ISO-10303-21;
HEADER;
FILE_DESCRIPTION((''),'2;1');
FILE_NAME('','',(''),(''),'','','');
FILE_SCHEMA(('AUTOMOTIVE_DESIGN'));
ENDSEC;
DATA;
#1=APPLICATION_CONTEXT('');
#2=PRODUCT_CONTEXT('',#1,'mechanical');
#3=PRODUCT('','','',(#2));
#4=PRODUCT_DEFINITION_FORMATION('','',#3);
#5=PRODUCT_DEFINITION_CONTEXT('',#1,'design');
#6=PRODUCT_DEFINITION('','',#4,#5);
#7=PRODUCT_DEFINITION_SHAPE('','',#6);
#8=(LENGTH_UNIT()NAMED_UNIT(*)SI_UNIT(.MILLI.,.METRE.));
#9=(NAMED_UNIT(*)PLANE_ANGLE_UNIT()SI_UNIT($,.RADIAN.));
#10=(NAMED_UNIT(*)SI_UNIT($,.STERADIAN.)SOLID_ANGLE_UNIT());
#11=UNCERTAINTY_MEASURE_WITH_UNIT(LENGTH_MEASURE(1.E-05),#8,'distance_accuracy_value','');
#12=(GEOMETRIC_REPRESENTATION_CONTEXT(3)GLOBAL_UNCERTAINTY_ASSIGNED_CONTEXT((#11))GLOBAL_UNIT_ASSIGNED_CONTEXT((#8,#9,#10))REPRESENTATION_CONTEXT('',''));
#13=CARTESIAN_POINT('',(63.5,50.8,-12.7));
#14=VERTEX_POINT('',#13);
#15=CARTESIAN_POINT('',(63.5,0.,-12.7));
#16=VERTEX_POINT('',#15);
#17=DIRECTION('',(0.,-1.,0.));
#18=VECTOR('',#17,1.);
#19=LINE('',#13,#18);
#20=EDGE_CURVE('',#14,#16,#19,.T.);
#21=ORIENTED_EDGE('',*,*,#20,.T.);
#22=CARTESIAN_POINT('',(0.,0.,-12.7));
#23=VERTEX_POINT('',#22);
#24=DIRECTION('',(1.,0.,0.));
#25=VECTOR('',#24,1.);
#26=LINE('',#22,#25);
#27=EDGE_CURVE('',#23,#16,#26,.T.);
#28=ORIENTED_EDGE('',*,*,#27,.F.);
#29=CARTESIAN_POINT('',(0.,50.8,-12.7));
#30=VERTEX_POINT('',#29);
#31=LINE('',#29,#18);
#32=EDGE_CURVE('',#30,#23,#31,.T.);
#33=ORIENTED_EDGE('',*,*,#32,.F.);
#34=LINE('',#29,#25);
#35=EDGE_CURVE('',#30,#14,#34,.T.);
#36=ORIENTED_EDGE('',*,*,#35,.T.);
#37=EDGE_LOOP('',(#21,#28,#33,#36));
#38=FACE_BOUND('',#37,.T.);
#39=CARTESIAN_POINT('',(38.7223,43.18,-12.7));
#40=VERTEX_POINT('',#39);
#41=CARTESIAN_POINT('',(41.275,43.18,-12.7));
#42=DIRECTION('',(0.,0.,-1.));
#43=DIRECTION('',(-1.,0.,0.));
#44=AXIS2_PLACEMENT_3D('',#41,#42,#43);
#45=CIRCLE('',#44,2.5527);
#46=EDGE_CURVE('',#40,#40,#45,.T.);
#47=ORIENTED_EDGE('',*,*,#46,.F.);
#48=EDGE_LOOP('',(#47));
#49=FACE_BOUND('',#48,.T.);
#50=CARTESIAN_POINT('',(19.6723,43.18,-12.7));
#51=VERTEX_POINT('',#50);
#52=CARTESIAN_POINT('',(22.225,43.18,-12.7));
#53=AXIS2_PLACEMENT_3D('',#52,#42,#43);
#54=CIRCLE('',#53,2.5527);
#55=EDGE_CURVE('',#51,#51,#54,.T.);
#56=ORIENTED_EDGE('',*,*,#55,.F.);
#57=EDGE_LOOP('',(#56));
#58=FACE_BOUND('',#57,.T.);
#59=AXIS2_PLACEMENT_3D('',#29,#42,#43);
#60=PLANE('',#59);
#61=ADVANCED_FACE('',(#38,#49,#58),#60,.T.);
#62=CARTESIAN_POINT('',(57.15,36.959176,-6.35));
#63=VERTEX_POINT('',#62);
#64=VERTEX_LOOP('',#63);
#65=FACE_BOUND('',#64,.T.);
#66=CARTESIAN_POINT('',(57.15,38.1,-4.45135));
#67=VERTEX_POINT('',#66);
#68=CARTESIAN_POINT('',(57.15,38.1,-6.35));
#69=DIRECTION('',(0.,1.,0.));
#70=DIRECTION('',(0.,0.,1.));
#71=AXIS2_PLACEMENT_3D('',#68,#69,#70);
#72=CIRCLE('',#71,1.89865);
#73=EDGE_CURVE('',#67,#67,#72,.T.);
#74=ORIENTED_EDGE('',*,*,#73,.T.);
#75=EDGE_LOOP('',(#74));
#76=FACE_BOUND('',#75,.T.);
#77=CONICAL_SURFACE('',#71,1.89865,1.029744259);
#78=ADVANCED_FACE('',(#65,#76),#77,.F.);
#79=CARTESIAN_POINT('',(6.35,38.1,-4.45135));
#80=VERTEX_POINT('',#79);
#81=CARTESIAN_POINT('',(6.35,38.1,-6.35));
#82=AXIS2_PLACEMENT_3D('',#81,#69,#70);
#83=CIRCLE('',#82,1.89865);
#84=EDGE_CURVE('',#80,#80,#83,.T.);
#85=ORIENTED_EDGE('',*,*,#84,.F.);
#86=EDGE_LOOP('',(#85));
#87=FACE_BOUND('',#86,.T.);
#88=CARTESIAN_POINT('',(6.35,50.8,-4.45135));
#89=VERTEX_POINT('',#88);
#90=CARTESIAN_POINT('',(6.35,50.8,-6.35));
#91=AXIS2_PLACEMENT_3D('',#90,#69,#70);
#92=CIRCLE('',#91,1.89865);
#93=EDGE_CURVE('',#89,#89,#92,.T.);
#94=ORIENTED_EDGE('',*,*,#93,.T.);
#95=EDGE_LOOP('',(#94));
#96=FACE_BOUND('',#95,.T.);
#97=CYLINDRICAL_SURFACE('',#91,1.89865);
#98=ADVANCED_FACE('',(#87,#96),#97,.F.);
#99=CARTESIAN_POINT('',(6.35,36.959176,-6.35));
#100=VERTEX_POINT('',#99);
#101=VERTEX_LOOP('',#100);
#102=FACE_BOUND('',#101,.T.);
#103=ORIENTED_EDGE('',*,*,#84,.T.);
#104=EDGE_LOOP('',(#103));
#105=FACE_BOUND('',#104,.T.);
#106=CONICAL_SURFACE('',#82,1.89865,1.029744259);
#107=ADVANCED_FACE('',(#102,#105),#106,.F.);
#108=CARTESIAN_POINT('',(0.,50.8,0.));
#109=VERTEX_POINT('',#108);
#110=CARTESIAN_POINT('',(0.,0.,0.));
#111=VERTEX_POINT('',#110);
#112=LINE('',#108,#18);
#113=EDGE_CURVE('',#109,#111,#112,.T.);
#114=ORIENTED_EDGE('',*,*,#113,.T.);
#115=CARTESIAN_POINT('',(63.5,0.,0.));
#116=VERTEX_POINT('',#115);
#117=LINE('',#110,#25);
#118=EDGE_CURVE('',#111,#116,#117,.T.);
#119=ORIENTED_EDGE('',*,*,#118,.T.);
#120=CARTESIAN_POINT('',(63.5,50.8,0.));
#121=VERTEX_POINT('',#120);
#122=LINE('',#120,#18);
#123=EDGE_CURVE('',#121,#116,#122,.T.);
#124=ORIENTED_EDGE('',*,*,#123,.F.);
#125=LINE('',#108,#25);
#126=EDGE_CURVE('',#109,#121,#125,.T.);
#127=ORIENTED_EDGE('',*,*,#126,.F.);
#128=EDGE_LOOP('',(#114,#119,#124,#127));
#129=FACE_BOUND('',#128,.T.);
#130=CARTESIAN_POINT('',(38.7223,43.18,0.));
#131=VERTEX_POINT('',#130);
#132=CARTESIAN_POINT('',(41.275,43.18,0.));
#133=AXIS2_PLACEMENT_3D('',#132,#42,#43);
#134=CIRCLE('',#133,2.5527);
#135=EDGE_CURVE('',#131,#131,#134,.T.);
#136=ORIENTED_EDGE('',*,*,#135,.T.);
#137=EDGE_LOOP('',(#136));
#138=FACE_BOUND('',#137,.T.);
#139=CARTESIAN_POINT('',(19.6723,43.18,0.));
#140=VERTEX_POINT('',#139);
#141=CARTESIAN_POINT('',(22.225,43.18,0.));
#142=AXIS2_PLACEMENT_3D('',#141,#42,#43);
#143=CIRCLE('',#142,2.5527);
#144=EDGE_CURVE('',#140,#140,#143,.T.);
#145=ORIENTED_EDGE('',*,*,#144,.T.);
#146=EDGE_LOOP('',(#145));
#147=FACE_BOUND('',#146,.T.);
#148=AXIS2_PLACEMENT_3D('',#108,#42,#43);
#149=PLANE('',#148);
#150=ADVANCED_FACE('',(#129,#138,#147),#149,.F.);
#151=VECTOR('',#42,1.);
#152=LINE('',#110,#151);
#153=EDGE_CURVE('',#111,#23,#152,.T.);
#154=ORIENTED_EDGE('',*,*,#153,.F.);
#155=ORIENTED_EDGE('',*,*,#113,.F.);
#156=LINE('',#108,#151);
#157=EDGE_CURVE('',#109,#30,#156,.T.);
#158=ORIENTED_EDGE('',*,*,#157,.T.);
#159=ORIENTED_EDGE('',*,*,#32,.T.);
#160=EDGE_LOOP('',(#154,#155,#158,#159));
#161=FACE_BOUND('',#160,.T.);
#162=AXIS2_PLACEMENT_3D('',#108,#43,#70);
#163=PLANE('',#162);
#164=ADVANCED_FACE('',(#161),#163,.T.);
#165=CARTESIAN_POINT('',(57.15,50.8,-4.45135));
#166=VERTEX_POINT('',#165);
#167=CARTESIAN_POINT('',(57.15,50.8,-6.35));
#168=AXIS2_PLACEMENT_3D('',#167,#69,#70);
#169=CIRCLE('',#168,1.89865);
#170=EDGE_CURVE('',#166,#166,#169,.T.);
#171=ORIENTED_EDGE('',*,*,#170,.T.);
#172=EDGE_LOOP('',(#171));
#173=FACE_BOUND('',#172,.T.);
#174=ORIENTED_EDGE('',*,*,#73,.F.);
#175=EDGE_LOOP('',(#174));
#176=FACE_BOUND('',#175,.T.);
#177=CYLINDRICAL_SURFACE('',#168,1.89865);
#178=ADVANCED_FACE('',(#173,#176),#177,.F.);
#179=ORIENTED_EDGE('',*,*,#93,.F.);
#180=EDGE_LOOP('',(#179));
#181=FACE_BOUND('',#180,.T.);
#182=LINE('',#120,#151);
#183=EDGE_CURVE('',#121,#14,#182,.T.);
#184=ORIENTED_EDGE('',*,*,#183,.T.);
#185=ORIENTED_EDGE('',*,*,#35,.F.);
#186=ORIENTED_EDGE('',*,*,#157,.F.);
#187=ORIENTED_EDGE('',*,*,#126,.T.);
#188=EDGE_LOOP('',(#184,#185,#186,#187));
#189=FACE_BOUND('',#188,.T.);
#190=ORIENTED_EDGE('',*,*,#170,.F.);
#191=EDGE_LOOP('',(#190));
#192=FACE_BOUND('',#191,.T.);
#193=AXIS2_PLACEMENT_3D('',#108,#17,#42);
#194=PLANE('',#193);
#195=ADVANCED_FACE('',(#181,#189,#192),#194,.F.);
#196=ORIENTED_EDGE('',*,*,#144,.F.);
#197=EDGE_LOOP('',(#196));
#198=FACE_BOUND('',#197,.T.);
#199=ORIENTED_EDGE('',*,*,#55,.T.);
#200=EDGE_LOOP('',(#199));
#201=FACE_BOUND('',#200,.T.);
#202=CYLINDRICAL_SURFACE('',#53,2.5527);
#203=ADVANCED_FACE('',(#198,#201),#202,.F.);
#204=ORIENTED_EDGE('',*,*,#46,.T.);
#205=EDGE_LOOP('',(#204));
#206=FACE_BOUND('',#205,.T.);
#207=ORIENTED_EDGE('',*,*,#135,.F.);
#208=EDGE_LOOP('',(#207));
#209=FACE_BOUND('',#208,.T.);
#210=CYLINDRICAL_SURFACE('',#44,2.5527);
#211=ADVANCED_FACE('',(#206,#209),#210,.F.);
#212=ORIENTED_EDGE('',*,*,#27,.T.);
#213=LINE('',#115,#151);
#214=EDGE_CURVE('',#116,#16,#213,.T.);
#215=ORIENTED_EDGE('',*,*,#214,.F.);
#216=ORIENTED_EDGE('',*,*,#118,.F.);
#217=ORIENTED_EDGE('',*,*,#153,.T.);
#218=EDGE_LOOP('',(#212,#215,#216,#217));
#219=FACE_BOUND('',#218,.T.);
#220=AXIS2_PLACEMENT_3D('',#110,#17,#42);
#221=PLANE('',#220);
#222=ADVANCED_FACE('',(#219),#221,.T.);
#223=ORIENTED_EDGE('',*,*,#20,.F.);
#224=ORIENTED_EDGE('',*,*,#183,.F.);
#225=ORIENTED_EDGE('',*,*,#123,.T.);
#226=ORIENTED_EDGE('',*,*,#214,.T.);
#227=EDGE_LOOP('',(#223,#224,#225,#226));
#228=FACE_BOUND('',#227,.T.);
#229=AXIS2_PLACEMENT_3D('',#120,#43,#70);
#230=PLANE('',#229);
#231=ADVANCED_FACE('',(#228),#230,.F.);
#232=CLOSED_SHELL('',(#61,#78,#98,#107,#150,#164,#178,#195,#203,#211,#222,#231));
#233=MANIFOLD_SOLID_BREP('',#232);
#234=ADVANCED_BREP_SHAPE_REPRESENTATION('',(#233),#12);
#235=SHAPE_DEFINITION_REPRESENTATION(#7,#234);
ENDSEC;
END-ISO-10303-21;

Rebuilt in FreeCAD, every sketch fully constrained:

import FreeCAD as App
import Part
import Sketcher
Q = App.Units.Quantity

doc = App.newDocument("Part")
body = doc.addObject("PartDesign::Body", "Body")

sketch1 = doc.addObject("Sketcher::SketchObject", "Sketch")
body.addObject(sketch1)
sketch1.AttachmentSupport = (doc.XZ_Plane, [""])
sketch1.MapMode = "FlatFace"
sketch1.addGeometry([
    Part.LineSegment(App.Vector(0, -13, 0), App.Vector(0, 0, 0)),
    Part.LineSegment(App.Vector(0, 0, 0), App.Vector(64, 0, 0)),
    Part.LineSegment(App.Vector(64, 0, 0), App.Vector(64, -13, 0)),
    Part.LineSegment(App.Vector(64, -13, 0), App.Vector(0, -13, 0)),
], False)
sketch1.addConstraint([
    Sketcher.Constraint("Coincident", 0, 2, 1, 1),
    Sketcher.Constraint("Coincident", 1, 2, 2, 1),
    Sketcher.Constraint("Coincident", 2, 2, 3, 1),
    Sketcher.Constraint("Coincident", 3, 2, 0, 1),
    Sketcher.Constraint("Vertical", 0),
    Sketcher.Constraint("Horizontal", 1),
    Sketcher.Constraint("Vertical", 2),
    Sketcher.Constraint("Horizontal", 3),
    Sketcher.Constraint("Coincident", 0, 2, -1, 1),
    Sketcher.Constraint("DistanceX", 1, 1, 1, 2, Q("2.5 in")),
    Sketcher.Constraint("DistanceY", 0, 1, 0, 2, Q("0.5 in")),
])
pad1 = doc.addObject("PartDesign::Pad", "Pad")
body.addObject(pad1)
pad1.Profile = sketch1
pad1.Length = Q("2 in")
pad1.Reversed = True

sketch2 = doc.addObject("Sketcher::SketchObject", "Sketch001")
body.addObject(sketch2)
sketch2.AttachmentSupport = (doc.XZ_Plane, [""])
sketch2.MapMode = "FlatFace"
sketch2.AttachmentOffset = App.Placement(App.Vector(0, 0, -2 * 25.4), App.Rotation())
sketch2.addGeometry([
    Part.Circle(App.Vector(6.3, -6.3, 0), App.Vector(0, 0, 1), 1.9),
    Part.Circle(App.Vector(57.1, -6.3, 0), App.Vector(0, 0, 1), 1.9),
], False)
sketch2.addConstraint([
    Sketcher.Constraint("Equal", 0, 1),
    Sketcher.Constraint("Horizontal", 0, 3, 1, 3),
    Sketcher.Constraint("DistanceX", 0, 3, 1, 3, Q("2 in")),
    Sketcher.Constraint("Diameter", 0, Q("0.1495 in")),
    Sketcher.Constraint("DistanceX", -1, 1, 0, 3, Q("0.25 in")),
    Sketcher.Constraint("DistanceY", 0, 3, -1, 1, Q("0.25 in")),
])
doc.recompute()
hole = doc.addObject("PartDesign::Hole", "Hole")
body.addObject(hole)
hole.Profile = sketch2
hole.ThreadType = "None"
hole.Diameter = Q("0.1495 in")
hole.DepthType = "Dimension"
hole.Depth = Q("0.5 in")
hole.DrillPoint = "Angled"
hole.DrillPointAngle = 118
hole.Reversed = True

sketch3 = doc.addObject("Sketcher::SketchObject", "Sketch002")
body.addObject(sketch3)
sketch3.AttachmentSupport = (doc.XY_Plane, [""])
sketch3.MapMode = "FlatFace"
sketch3.AttachmentOffset = App.Placement(App.Vector(0, 0, -0.5 * 25.4), App.Rotation())
sketch3.addGeometry([
    Part.Circle(App.Vector(22.2, 43.2, 0), App.Vector(0, 0, 1), 2.6),
    Part.Circle(App.Vector(41.3, 43.2, 0), App.Vector(0, 0, 1), 2.6),
], False)
sketch3.addConstraint([
    Sketcher.Constraint("Equal", 0, 1),
    Sketcher.Constraint("Horizontal", 0, 3, 1, 3),
    Sketcher.Constraint("Diameter", 0, Q("0.201 in")),
    Sketcher.Constraint("DistanceY", -1, 1, 0, 3, Q("1.7 in")),
    Sketcher.Constraint("DistanceX", 0, 3, 1, 3, Q("0.75 in")),
    Sketcher.Constraint("DistanceX", -1, 1, 0, 3, Q("0.875 in")),
])
doc.recompute()
hole2 = doc.addObject("PartDesign::Hole", "Hole001")
body.addObject(hole2)
hole2.Profile = sketch3
hole2.ThreadType = "None"
hole2.Diameter = Q("0.201 in")
hole2.DepthType = "Dimension"
hole2.Depth = Q("0.5 in")
hole2.DrillPoint = "Angled"
hole2.DrillPointAngle = 118
hole2.Reversed = True

doc.recompute()
